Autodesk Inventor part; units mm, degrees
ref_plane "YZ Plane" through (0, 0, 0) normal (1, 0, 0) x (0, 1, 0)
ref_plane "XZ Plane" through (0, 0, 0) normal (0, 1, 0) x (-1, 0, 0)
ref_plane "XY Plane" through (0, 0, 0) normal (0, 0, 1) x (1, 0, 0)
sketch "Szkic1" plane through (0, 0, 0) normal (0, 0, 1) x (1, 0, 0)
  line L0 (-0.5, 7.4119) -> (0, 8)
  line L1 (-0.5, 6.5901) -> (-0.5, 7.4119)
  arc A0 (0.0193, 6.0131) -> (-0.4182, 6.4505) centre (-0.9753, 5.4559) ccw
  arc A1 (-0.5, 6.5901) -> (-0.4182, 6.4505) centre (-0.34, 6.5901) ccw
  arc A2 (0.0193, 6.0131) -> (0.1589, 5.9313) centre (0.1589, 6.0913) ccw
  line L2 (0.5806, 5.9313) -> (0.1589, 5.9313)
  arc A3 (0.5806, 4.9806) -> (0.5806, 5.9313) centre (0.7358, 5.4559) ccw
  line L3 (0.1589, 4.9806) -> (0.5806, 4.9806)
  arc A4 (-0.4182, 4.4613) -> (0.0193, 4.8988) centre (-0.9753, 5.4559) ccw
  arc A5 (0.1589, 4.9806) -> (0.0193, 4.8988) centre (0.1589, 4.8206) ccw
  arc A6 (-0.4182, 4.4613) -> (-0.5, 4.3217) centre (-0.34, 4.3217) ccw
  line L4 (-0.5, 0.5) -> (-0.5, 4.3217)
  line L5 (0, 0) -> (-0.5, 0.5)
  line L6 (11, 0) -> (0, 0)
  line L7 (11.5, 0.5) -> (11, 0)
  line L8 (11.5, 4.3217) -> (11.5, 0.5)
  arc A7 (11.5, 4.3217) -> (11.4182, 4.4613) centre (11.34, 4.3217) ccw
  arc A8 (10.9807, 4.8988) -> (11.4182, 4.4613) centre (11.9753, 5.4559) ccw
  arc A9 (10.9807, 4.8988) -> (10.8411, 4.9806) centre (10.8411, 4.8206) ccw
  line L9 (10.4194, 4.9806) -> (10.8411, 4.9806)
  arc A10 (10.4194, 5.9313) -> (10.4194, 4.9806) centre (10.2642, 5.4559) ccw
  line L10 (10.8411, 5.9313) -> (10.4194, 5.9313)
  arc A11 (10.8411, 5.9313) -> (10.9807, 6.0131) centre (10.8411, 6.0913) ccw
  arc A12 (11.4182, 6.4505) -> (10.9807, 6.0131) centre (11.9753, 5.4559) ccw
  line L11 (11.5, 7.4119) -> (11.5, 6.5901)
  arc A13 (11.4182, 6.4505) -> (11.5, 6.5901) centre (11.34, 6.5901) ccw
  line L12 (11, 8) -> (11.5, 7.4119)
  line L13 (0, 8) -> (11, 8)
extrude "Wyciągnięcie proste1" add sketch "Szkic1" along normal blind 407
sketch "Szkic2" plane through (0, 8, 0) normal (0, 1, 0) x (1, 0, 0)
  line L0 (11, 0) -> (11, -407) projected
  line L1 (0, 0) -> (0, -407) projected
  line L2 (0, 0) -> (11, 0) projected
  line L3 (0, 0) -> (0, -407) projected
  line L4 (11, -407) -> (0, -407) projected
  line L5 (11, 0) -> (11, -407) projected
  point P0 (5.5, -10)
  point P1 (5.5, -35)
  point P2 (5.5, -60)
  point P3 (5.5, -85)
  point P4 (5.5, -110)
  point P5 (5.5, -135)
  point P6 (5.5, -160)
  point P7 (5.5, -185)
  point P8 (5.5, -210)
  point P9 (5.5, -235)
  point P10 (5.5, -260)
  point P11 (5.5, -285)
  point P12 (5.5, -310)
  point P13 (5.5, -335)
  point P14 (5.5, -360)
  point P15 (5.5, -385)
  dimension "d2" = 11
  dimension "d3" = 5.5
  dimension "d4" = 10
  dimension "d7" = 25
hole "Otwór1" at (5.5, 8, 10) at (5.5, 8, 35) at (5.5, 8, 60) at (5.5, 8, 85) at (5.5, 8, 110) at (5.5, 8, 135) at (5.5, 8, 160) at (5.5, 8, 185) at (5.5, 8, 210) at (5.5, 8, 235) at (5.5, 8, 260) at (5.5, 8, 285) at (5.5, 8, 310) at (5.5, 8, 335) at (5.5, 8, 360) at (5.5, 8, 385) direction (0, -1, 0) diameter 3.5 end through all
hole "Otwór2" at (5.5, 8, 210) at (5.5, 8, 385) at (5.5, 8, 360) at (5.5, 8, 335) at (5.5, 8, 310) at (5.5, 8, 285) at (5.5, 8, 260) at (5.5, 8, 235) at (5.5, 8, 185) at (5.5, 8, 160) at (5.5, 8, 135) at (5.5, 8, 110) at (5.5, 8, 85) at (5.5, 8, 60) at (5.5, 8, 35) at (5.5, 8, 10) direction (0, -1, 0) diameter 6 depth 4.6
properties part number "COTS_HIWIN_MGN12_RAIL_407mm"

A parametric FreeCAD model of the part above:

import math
import FreeCAD as App
import Part
import Sketcher

V = App.Vector
Q = App.Units.Quantity

doc = App.newDocument("Part")
body = doc.addObject("PartDesign::Body", "Body")

sketch1 = body.newObject("Sketcher::SketchObject", "Sketch")
sketch1.AttachmentSupport = (doc.getObject("XY_Plane"), [""])
sketch1.MapMode = "FlatFace"
sketch1.addGeometry(Part.LineSegment(V(0, 8, 0), V(-0.5, 7.4119, 0)), False)
sketch1.addGeometry(Part.LineSegment(V(-0.5, 7.4119, 0), V(-0.5, 6.5901, 0)), False)
sketch1.addGeometry(Part.ArcOfCircle(Part.Circle(V(-0.34, 6.5901, 0), V(0, 0, 1), 0.16), math.radians(180), math.radians(240.743676)), False)
sketch1.addGeometry(Part.ArcOfCircle(Part.Circle(V(-0.9753, 5.4559, 0), V(0, 0, 1), 1.139995), math.radians(29.258649), math.radians(60.745736)), False)
sketch1.addGeometry(Part.ArcOfCircle(Part.Circle(V(0.1589, 6.0913, 0), V(0, 0, 1), 0.160011), math.radians(-150.743676), math.radians(-90)), False)
sketch1.addGeometry(Part.LineSegment(V(0.1589, 5.9313, 0), V(0.5806, 5.9313, 0)), False)
sketch1.addGeometry(Part.ArcOfCircle(Part.Circle(V(0.7358, 5.4559, 0), V(0, 0, 1), 0.499997), math.radians(-108.083445), math.radians(108.079889)), False)
sketch1.addGeometry(Part.LineSegment(V(0.5806, 4.9806, 0), V(0.1589, 4.9806, 0)), False)
sketch1.addGeometry(Part.ArcOfCircle(Part.Circle(V(0.1589, 4.8206, 0), V(0, 0, 1), 0.16), math.radians(90), math.radians(150.743676)), False)
sketch1.addGeometry(Part.ArcOfCircle(Part.Circle(V(-0.9753, 5.4559, 0), V(0, 0, 1), 1.139995), math.radians(-60.745736), math.radians(-29.254264)), False)
sketch1.addGeometry(Part.ArcOfCircle(Part.Circle(V(-0.34, 4.3217, 0), V(0, 0, 1), 0.160011), math.radians(119.256324), math.radians(180)), False)
sketch1.addGeometry(Part.LineSegment(V(-0.5, 4.3217, 0), V(-0.5, 0.5, 0)), False)
sketch1.addGeometry(Part.LineSegment(V(-0.5, 0.5, 0), V(0, 0, 0)), False)
sketch1.addGeometry(Part.LineSegment(V(0, 0, 0), V(11, 0, 0)), False)
sketch1.addGeometry(Part.LineSegment(V(11, 0, 0), V(11.5, 0.5, 0)), False)
sketch1.addGeometry(Part.LineSegment(V(11.5, 0.5, 0), V(11.5, 4.3217, 0)), False)
sketch1.addGeometry(Part.ArcOfCircle(Part.Circle(V(11.34, 4.3217, 0), V(0, 0, 1), 0.16), math.radians(0), math.radians(60.743676)), False)
sketch1.addGeometry(Part.ArcOfCircle(Part.Circle(V(11.9753, 5.4559, 0), V(0, 0, 1), 1.139995), math.radians(-150.745736), math.radians(-119.254264)), False)
sketch1.addGeometry(Part.ArcOfCircle(Part.Circle(V(10.8411, 4.8206, 0), V(0, 0, 1), 0.160011), math.radians(29.256324), math.radians(90)), False)
sketch1.addGeometry(Part.LineSegment(V(10.8411, 4.9806, 0), V(10.4194, 4.9806, 0)), False)
sketch1.addGeometry(Part.ArcOfCircle(Part.Circle(V(10.2642, 5.4559, 0), V(0, 0, 1), 0.500092), math.radians(71.920111), math.radians(288.083445)), False)
sketch1.addGeometry(Part.LineSegment(V(10.4194, 5.9313, 0), V(10.8411, 5.9313, 0)), False)
sketch1.addGeometry(Part.ArcOfCircle(Part.Circle(V(10.8411, 6.0913, 0), V(0, 0, 1), 0.16), math.radians(-90), math.radians(-29.256324)), False)
sketch1.addGeometry(Part.ArcOfCircle(Part.Circle(V(11.9753, 5.4559, 0), V(0, 0, 1), 1.139995), math.radians(119.254264), math.radians(150.741351)), False)
sketch1.addGeometry(Part.ArcOfCircle(Part.Circle(V(11.34, 6.5901, 0), V(0, 0, 1), 0.160011), math.radians(-60.743676), math.radians(0)), False)
sketch1.addGeometry(Part.LineSegment(V(11.5, 6.5901, 0), V(11.5, 7.4119, 0)), False)
sketch1.addGeometry(Part.LineSegment(V(11.5, 7.4119, 0), V(11, 8, 0)), False)
sketch1.addGeometry(Part.LineSegment(V(11, 8, 0), V(0, 8, 0)), False)
sketch1.addConstraint(Sketcher.Constraint("Coincident", 0, 2, 1, 1))
sketch1.addConstraint(Sketcher.Constraint("Tangent", 1, 2, 2, 1))
sketch1.addConstraint(Sketcher.Constraint("Tangent", 2, 2, 3, 2))
sketch1.addConstraint(Sketcher.Constraint("Tangent", 3, 1, 4, 1))
sketch1.addConstraint(Sketcher.Constraint("Tangent", 4, 2, 5, 1))
sketch1.addConstraint(Sketcher.Constraint("Coincident", 5, 2, 6, 2))
sketch1.addConstraint(Sketcher.Constraint("Coincident", 6, 1, 7, 1))
sketch1.addConstraint(Sketcher.Constraint("Tangent", 7, 2, 8, 1))
sketch1.addConstraint(Sketcher.Constraint("Tangent", 8, 2, 9, 2))
sketch1.addConstraint(Sketcher.Constraint("Tangent", 9, 1, 10, 1))
sketch1.addConstraint(Sketcher.Constraint("Tangent", 10, 2, 11, 1))
sketch1.addConstraint(Sketcher.Constraint("Coincident", 11, 2, 12, 1))
sketch1.addConstraint(Sketcher.Constraint("Coincident", 12, 2, 13, 1))
sketch1.addConstraint(Sketcher.Constraint("Coincident", 13, 2, 14, 1))
sketch1.addConstraint(Sketcher.Constraint("Coincident", 14, 2, 15, 1))
sketch1.addConstraint(Sketcher.Constraint("Tangent", 15, 2, 16, 1))
sketch1.addConstraint(Sketcher.Constraint("Tangent", 16, 2, 17, 2))
sketch1.addConstraint(Sketcher.Constraint("Tangent", 17, 1, 18, 1))
sketch1.addConstraint(Sketcher.Constraint("Tangent", 18, 2, 19, 1))
sketch1.addConstraint(Sketcher.Constraint("Coincident", 19, 2, 20, 2))
sketch1.addConstraint(Sketcher.Constraint("Coincident", 20, 1, 21, 1))
sketch1.addConstraint(Sketcher.Constraint("Tangent", 21, 2, 22, 1))
sketch1.addConstraint(Sketcher.Constraint("Tangent", 22, 2, 23, 2))
sketch1.addConstraint(Sketcher.Constraint("Tangent", 23, 1, 24, 1))
sketch1.addConstraint(Sketcher.Constraint("Tangent", 24, 2, 25, 1))
sketch1.addConstraint(Sketcher.Constraint("Coincident", 25, 2, 26, 1))
sketch1.addConstraint(Sketcher.Constraint("Coincident", 26, 2, 27, 1))
sketch1.addConstraint(Sketcher.Constraint("Coincident", 27, 2, 0, 1))
sketch1.addConstraint(Sketcher.Constraint("Vertical", 1))
sketch1.addConstraint(Sketcher.Constraint("Horizontal", 5))
sketch1.addConstraint(Sketcher.Constraint("Horizontal", 7))
sketch1.addConstraint(Sketcher.Constraint("Vertical", 11))
sketch1.addConstraint(Sketcher.Constraint("Horizontal", 13))
sketch1.addConstraint(Sketcher.Constraint("Vertical", 15))
sketch1.addConstraint(Sketcher.Constraint("Horizontal", 19))
sketch1.addConstraint(Sketcher.Constraint("Horizontal", 21))
sketch1.addConstraint(Sketcher.Constraint("Vertical", 25))
sketch1.addConstraint(Sketcher.Constraint("Horizontal", 27))
sketch1.addConstraint(Sketcher.Constraint("Coincident", 12, 2, -1, 1))
sketch1.addConstraint(Sketcher.Constraint("Coincident", 9, 3, 3, 3))
sketch1.addConstraint(Sketcher.Constraint("Coincident", 23, 3, 17, 3))
sketch1.addConstraint(Sketcher.Constraint("Equal", 2, 4))
sketch1.addConstraint(Sketcher.Constraint("Equal", 4, 8))
sketch1.addConstraint(Sketcher.Constraint("Equal", 3, 9))
sketch1.addConstraint(Sketcher.Constraint("Equal", 8, 10))
sketch1.addConstraint(Sketcher.Constraint("Equal", 10, 16))
sketch1.addConstraint(Sketcher.Constraint("Equal", 9, 17))
sketch1.addConstraint(Sketcher.Constraint("Equal", 16, 18))
sketch1.addConstraint(Sketcher.Constraint("Equal", 6, 20))
sketch1.addConstraint(Sketcher.Constraint("Equal", 18, 22))
sketch1.addConstraint(Sketcher.Constraint("Equal", 17, 23))
sketch1.addConstraint(Sketcher.Constraint("Equal", 22, 24))
sketch1.addConstraint(Sketcher.Constraint("PointOnObject", 27, 2, -2))
sketch1.addConstraint(Sketcher.Constraint("Perpendicular", 12, 14))
sketch1.addConstraint(Sketcher.Constraint("Horizontal", 3, 3, 6, 3))
sketch1.addConstraint(Sketcher.Constraint("Horizontal", 10, 3, 16, 3))
sketch1.addConstraint(Sketcher.Constraint("Horizontal", 9, 3, 17, 3))
sketch1.addConstraint(Sketcher.Constraint("Horizontal", 8, 3, 18, 3))
sketch1.addConstraint(Sketcher.Constraint("Horizontal", 17, 3, 20, 3))
sketch1.addConstraint(Sketcher.Constraint("Horizontal", 4, 3, 22, 3))
sketch1.addConstraint(Sketcher.Constraint("Horizontal", 2, 3, 24, 3))
sketch1.addConstraint(Sketcher.Constraint("Horizontal", 11, 2, 14, 2))
sketch1.addConstraint(Sketcher.Constraint("Horizontal", 0, 2, 25, 2))
sketch1.addConstraint(Sketcher.Constraint("Vertical", 4, 3, 8, 3))
sketch1.addConstraint(Sketcher.Constraint("Vertical", 2, 3, 10, 3))
sketch1.addConstraint(Sketcher.Constraint("Vertical", 13, 2, 26, 2))
sketch1.addConstraint(Sketcher.Constraint("Equal", 7, 19))
sketch1.addConstraint(Sketcher.Constraint("Equal", 12, 14))
sketch1.addConstraint(Sketcher.Constraint("Radius", 6, Q("0.5 mm")))
sketch1.addConstraint(Sketcher.Constraint("DistanceX", 13, 1, 13, 2, Q("11 mm")))
sketch1.addConstraint(Sketcher.Constraint("Radius", 2, Q("0.16 mm")))
sketch1.addConstraint(Sketcher.Constraint("Radius", 3, Q("1.14 mm")))
sketch1.addConstraint(Sketcher.Constraint("DistanceY", -1, 1, 26, 2, Q("8 mm")))
sketch1.addConstraint(Sketcher.Constraint("DistanceX", 0, 2, -1, 1, Q("0.5 mm")))
sketch1.addConstraint(Sketcher.Constraint("Angle", 0, Q("-130.371 deg")))
sketch1.addConstraint(Sketcher.Constraint("DistanceY", -1, 1, 2, 3, Q("6.59 mm")))
sketch1.addConstraint(Sketcher.Constraint("DistanceX", 5, 1, 5, 2, Q("0.4217 mm")))
sketch1.addConstraint(Sketcher.Constraint("DistanceY", 11, 2, 11, 1, Q("3.8217 mm")))
sketch1.addConstraint(Sketcher.Constraint("DistanceX", -1, 1, 4, 3, Q("0.159 mm")))
pad1 = body.newObject("PartDesign::Pad", "Pad")
pad1.Profile = sketch1
pad1.Length = 407

sketch2 = body.newObject("Sketcher::SketchObject", "Sketch001")
sketch2.AttachmentSupport = (doc.getObject("XZ_Plane"), [""])
sketch2.MapMode = "FlatFace"
sketch2.AttachmentOffset = App.Placement(V(0, 0, -8), App.Rotation())
sketch2.addGeometry(Part.Circle(V(5.5, 10, 0), V(0, 0, 1), 1.75), False)
sketch2.addGeometry(Part.Circle(V(5.5, 35, 0), V(0, 0, 1), 1.75), False)
sketch2.addGeometry(Part.Circle(V(5.5, 60, 0), V(0, 0, 1), 1.75), False)
sketch2.addGeometry(Part.Circle(V(5.5, 85, 0), V(0, 0, 1), 1.75), False)
sketch2.addGeometry(Part.Circle(V(5.5, 110, 0), V(0, 0, 1), 1.75), False)
sketch2.addGeometry(Part.Circle(V(5.5, 135, 0), V(0, 0, 1), 1.75), False)
sketch2.addGeometry(Part.Circle(V(5.5, 160, 0), V(0, 0, 1), 1.75), False)
sketch2.addGeometry(Part.Circle(V(5.5, 185, 0), V(0, 0, 1), 1.75), False)
sketch2.addGeometry(Part.Circle(V(5.5, 210, 0), V(0, 0, 1), 1.75), False)
sketch2.addGeometry(Part.Circle(V(5.5, 235, 0), V(0, 0, 1), 1.75), False)
sketch2.addGeometry(Part.Circle(V(5.5, 260, 0), V(0, 0, 1), 1.75), False)
sketch2.addGeometry(Part.Circle(V(5.5, 285, 0), V(0, 0, 1), 1.75), False)
sketch2.addGeometry(Part.Circle(V(5.5, 310, 0), V(0, 0, 1), 1.75), False)
sketch2.addGeometry(Part.Circle(V(5.5, 335, 0), V(0, 0, 1), 1.75), False)
sketch2.addGeometry(Part.Circle(V(5.5, 360, 0), V(0, 0, 1), 1.75), False)
sketch2.addGeometry(Part.Circle(V(5.5, 385, 0), V(0, 0, 1), 1.75), False)
sketch2.addConstraint(Sketcher.Constraint("Equal", 0, 1))
sketch2.addConstraint(Sketcher.Constraint("Equal", 1, 2))
sketch2.addConstraint(Sketcher.Constraint("Equal", 2, 3))
sketch2.addConstraint(Sketcher.Constraint("Equal", 3, 4))
sketch2.addConstraint(Sketcher.Constraint("Equal", 4, 5))
sketch2.addConstraint(Sketcher.Constraint("Equal", 5, 6))
sketch2.addConstraint(Sketcher.Constraint("Equal", 6, 7))
sketch2.addConstraint(Sketcher.Constraint("Equal", 7, 8))
sketch2.addConstraint(Sketcher.Constraint("Equal", 8, 9))
sketch2.addConstraint(Sketcher.Constraint("Equal", 9, 10))
sketch2.addConstraint(Sketcher.Constraint("Equal", 10, 11))
sketch2.addConstraint(Sketcher.Constraint("Equal", 11, 12))
sketch2.addConstraint(Sketcher.Constraint("Equal", 12, 13))
sketch2.addConstraint(Sketcher.Constraint("Equal", 13, 14))
sketch2.addConstraint(Sketcher.Constraint("Equal", 14, 15))
sketch2.addConstraint(Sketcher.Constraint("Vertical", 0, 3, 1, 3))
sketch2.addConstraint(Sketcher.Constraint("Vertical", 1, 3, 2, 3))
sketch2.addConstraint(Sketcher.Constraint("Vertical", 2, 3, 3, 3))
sketch2.addConstraint(Sketcher.Constraint("Vertical", 3, 3, 4, 3))
sketch2.addConstraint(Sketcher.Constraint("Vertical", 4, 3, 5, 3))
sketch2.addConstraint(Sketcher.Constraint("Vertical", 5, 3, 6, 3))
sketch2.addConstraint(Sketcher.Constraint("Vertical", 6, 3, 7, 3))
sketch2.addConstraint(Sketcher.Constraint("Vertical", 7, 3, 8, 3))
sketch2.addConstraint(Sketcher.Constraint("Vertical", 8, 3, 9, 3))
sketch2.addConstraint(Sketcher.Constraint("Vertical", 9, 3, 10, 3))
sketch2.addConstraint(Sketcher.Constraint("Vertical", 10, 3, 11, 3))
sketch2.addConstraint(Sketcher.Constraint("Vertical", 11, 3, 12, 3))
sketch2.addConstraint(Sketcher.Constraint("Vertical", 12, 3, 13, 3))
sketch2.addConstraint(Sketcher.Constraint("Vertical", 13, 3, 14, 3))
sketch2.addConstraint(Sketcher.Constraint("Vertical", 14, 3, 15, 3))
sketch2.addConstraint(Sketcher.Constraint("Diameter", 0, Q("3.5 mm")))
sketch2.addConstraint(Sketcher.Constraint("DistanceY", -1, 1, 0, 3, Q("10 mm")))
sketch2.addConstraint(Sketcher.Constraint("DistanceY", -1, 1, 1, 3, Q("35 mm")))
sketch2.addConstraint(Sketcher.Constraint("DistanceY", -1, 1, 2, 3, Q("60 mm")))
sketch2.addConstraint(Sketcher.Constraint("DistanceY", -1, 1, 3, 3, Q("85 mm")))
sketch2.addConstraint(Sketcher.Constraint("DistanceY", -1, 1, 4, 3, Q("110 mm")))
sketch2.addConstraint(Sketcher.Constraint("DistanceY", -1, 1, 5, 3, Q("135 mm")))
sketch2.addConstraint(Sketcher.Constraint("DistanceY", -1, 1, 6, 3, Q("160 mm")))
sketch2.addConstraint(Sketcher.Constraint("DistanceY", -1, 1, 7, 3, Q("185 mm")))
sketch2.addConstraint(Sketcher.Constraint("DistanceY", -1, 1, 8, 3, Q("210 mm")))
sketch2.addConstraint(Sketcher.Constraint("DistanceY", -1, 1, 9, 3, Q("235 mm")))
sketch2.addConstraint(Sketcher.Constraint("DistanceY", -1, 1, 10, 3, Q("260 mm")))
sketch2.addConstraint(Sketcher.Constraint("DistanceY", -1, 1, 11, 3, Q("285 mm")))
sketch2.addConstraint(Sketcher.Constraint("DistanceY", -1, 1, 12, 3, Q("310 mm")))
sketch2.addConstraint(Sketcher.Constraint("DistanceY", -1, 1, 13, 3, Q("335 mm")))
sketch2.addConstraint(Sketcher.Constraint("DistanceY", -1, 1, 14, 3, Q("360 mm")))
sketch2.addConstraint(Sketcher.Constraint("DistanceY", -1, 1, 15, 3, Q("385 mm")))
sketch2.addConstraint(Sketcher.Constraint("DistanceX", -1, 1, 0, 3, Q("5.5 mm")))
doc.recompute()
hole = body.newObject("PartDesign::Hole", "Hole")
hole.Profile = sketch2
hole.ThreadType = "None"
hole.Diameter = 3.5
hole.DepthType = "ThroughAll"
hole.Reversed = True

sketch3 = body.newObject("Sketcher::SketchObject", "Sketch002")
sketch3.AttachmentSupport = (doc.getObject("XZ_Plane"), [""])
sketch3.MapMode = "FlatFace"
sketch3.AttachmentOffset = App.Placement(V(0, 0, -8), App.Rotation())
sketch3.addGeometry(Part.Circle(V(5.5, 210, 0), V(0, 0, 1), 3), False)
sketch3.addGeometry(Part.Circle(V(5.5, 385, 0), V(0, 0, 1), 3), False)
sketch3.addGeometry(Part.Circle(V(5.5, 360, 0), V(0, 0, 1), 3), False)
sketch3.addGeometry(Part.Circle(V(5.5, 335, 0), V(0, 0, 1), 3), False)
sketch3.addGeometry(Part.Circle(V(5.5, 310, 0), V(0, 0, 1), 3), False)
sketch3.addGeometry(Part.Circle(V(5.5, 285, 0), V(0, 0, 1), 3), False)
sketch3.addGeometry(Part.Circle(V(5.5, 260, 0), V(0, 0, 1), 3), False)
sketch3.addGeometry(Part.Circle(V(5.5, 235, 0), V(0, 0, 1), 3), False)
sketch3.addGeometry(Part.Circle(V(5.5, 185, 0), V(0, 0, 1), 3), False)
sketch3.addGeometry(Part.Circle(V(5.5, 160, 0), V(0, 0, 1), 3), False)
sketch3.addGeometry(Part.Circle(V(5.5, 135, 0), V(0, 0, 1), 3), False)
sketch3.addGeometry(Part.Circle(V(5.5, 110, 0), V(0, 0, 1), 3), False)
sketch3.addGeometry(Part.Circle(V(5.5, 85, 0), V(0, 0, 1), 3), False)
sketch3.addGeometry(Part.Circle(V(5.5, 60, 0), V(0, 0, 1), 3), False)
sketch3.addGeometry(Part.Circle(V(5.5, 35, 0), V(0, 0, 1), 3), False)
sketch3.addGeometry(Part.Circle(V(5.5, 10, 0), V(0, 0, 1), 3), False)
sketch3.addConstraint(Sketcher.Constraint("Equal", 0, 1))
sketch3.addConstraint(Sketcher.Constraint("Equal", 1, 2))
sketch3.addConstraint(Sketcher.Constraint("Equal", 2, 3))
sketch3.addConstraint(Sketcher.Constraint("Equal", 3, 4))
sketch3.addConstraint(Sketcher.Constraint("Equal", 4, 5))
sketch3.addConstraint(Sketcher.Constraint("Equal", 5, 6))
sketch3.addConstraint(Sketcher.Constraint("Equal", 6, 7))
sketch3.addConstraint(Sketcher.Constraint("Equal", 7, 8))
sketch3.addConstraint(Sketcher.Constraint("Equal", 8, 9))
sketch3.addConstraint(Sketcher.Constraint("Equal", 9, 10))
sketch3.addConstraint(Sketcher.Constraint("Equal", 10, 11))
sketch3.addConstraint(Sketcher.Constraint("Equal", 11, 12))
sketch3.addConstraint(Sketcher.Constraint("Equal", 12, 13))
sketch3.addConstraint(Sketcher.Constraint("Equal", 13, 14))
sketch3.addConstraint(Sketcher.Constraint("Equal", 14, 15))
sketch3.addConstraint(Sketcher.Constraint("Vertical", 0, 3, 1, 3))
sketch3.addConstraint(Sketcher.Constraint("Vertical", 1, 3, 2, 3))
sketch3.addConstraint(Sketcher.Constraint("Vertical", 2, 3, 3, 3))
sketch3.addConstraint(Sketcher.Constraint("Vertical", 3, 3, 4, 3))
sketch3.addConstraint(Sketcher.Constraint("Vertical", 4, 3, 5, 3))
sketch3.addConstraint(Sketcher.Constraint("Vertical", 5, 3, 6, 3))
sketch3.addConstraint(Sketcher.Constraint("Vertical", 6, 3, 7, 3))
sketch3.addConstraint(Sketcher.Constraint("Vertical", 7, 3, 8, 3))
sketch3.addConstraint(Sketcher.Constraint("Vertical", 8, 3, 9, 3))
sketch3.addConstraint(Sketcher.Constraint("Vertical", 9, 3, 10, 3))
sketch3.addConstraint(Sketcher.Constraint("Vertical", 10, 3, 11, 3))
sketch3.addConstraint(Sketcher.Constraint("Vertical", 11, 3, 12, 3))
sketch3.addConstraint(Sketcher.Constraint("Vertical", 12, 3, 13, 3))
sketch3.addConstraint(Sketcher.Constraint("Vertical", 13, 3, 14, 3))
sketch3.addConstraint(Sketcher.Constraint("Vertical", 14, 3, 15, 3))
sketch3.addConstraint(Sketcher.Constraint("Diameter", 0, Q("6 mm")))
sketch3.addConstraint(Sketcher.Constraint("DistanceY", -1, 1, 0, 3, Q("210 mm")))
sketch3.addConstraint(Sketcher.Constraint("DistanceY", -1, 1, 1, 3, Q("385 mm")))
sketch3.addConstraint(Sketcher.Constraint("DistanceY", -1, 1, 2, 3, Q("360 mm")))
sketch3.addConstraint(Sketcher.Constraint("DistanceY", -1, 1, 3, 3, Q("335 mm")))
sketch3.addConstraint(Sketcher.Constraint("DistanceY", -1, 1, 4, 3, Q("310 mm")))
sketch3.addConstraint(Sketcher.Constraint("DistanceY", -1, 1, 5, 3, Q("285 mm")))
sketch3.addConstraint(Sketcher.Constraint("DistanceY", -1, 1, 6, 3, Q("260 mm")))
sketch3.addConstraint(Sketcher.Constraint("DistanceY", -1, 1, 7, 3, Q("235 mm")))
sketch3.addConstraint(Sketcher.Constraint("DistanceY", -1, 1, 8, 3, Q("185 mm")))
sketch3.addConstraint(Sketcher.Constraint("DistanceY", -1, 1, 9, 3, Q("160 mm")))
sketch3.addConstraint(Sketcher.Constraint("DistanceY", -1, 1, 10, 3, Q("135 mm")))
sketch3.addConstraint(Sketcher.Constraint("DistanceY", -1, 1, 11, 3, Q("110 mm")))
sketch3.addConstraint(Sketcher.Constraint("DistanceY", -1, 1, 12, 3, Q("85 mm")))
sketch3.addConstraint(Sketcher.Constraint("DistanceY", -1, 1, 13, 3, Q("60 mm")))
sketch3.addConstraint(Sketcher.Constraint("DistanceY", -1, 1, 14, 3, Q("35 mm")))
sketch3.addConstraint(Sketcher.Constraint("DistanceY", -1, 1, 15, 3, Q("10 mm")))
sketch3.addConstraint(Sketcher.Constraint("DistanceX", -1, 1, 0, 3, Q("5.5 mm")))
doc.recompute()
hole2 = body.newObject("PartDesign::Hole", "Hole001")
hole2.Profile = sketch3
hole2.ThreadType = "None"
hole2.Diameter = 6
hole2.DepthType = "Dimension"
hole2.Depth = 4.6
hole2.DrillPoint = "Flat"
hole2.Reversed = True

doc.recompute()
